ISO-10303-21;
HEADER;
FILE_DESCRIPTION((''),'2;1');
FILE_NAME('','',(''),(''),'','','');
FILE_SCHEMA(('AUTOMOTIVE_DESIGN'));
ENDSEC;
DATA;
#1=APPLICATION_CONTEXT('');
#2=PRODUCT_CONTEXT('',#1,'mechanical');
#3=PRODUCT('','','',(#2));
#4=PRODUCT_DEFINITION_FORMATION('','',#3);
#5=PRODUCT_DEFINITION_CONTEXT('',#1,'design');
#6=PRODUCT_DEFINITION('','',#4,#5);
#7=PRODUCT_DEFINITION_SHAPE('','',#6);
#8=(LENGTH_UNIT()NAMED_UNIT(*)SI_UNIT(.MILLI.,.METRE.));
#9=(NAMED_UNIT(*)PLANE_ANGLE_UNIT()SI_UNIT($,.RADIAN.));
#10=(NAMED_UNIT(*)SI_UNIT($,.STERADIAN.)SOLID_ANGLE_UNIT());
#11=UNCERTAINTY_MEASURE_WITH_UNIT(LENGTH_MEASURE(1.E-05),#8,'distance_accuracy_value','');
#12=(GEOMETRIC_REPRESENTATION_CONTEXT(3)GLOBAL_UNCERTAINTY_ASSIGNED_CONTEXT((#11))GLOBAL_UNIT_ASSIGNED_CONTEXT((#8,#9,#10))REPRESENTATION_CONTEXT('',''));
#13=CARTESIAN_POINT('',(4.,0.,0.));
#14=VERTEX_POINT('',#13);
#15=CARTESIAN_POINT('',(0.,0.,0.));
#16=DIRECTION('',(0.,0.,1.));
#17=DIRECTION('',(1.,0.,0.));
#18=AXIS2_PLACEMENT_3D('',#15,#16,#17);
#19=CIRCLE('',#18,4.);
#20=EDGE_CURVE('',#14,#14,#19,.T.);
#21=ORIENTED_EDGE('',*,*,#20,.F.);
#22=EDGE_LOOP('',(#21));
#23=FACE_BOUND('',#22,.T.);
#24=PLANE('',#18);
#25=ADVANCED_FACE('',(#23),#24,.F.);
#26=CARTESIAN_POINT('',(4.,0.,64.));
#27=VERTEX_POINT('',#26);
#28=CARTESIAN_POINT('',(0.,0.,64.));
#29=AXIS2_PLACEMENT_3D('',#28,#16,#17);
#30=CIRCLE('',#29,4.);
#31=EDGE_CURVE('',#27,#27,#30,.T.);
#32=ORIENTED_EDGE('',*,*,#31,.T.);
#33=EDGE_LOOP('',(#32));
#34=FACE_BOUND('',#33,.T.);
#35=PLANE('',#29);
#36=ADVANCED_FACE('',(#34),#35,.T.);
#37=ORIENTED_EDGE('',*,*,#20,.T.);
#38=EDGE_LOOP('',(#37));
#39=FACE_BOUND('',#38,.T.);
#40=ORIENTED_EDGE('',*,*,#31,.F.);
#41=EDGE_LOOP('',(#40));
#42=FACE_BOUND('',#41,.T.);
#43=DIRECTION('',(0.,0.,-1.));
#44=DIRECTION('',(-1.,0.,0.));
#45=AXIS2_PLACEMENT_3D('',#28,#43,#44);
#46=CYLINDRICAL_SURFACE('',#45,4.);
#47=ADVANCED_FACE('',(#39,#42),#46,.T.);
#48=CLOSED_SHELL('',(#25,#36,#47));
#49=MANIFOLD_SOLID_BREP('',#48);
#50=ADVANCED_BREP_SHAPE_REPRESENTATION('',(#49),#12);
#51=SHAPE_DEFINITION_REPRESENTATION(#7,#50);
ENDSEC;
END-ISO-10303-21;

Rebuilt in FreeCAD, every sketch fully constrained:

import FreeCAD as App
import Part
import Sketcher

V = App.Vector

doc = App.newDocument("Part")
body = doc.addObject("PartDesign::Body", "Body")

sketch1 = body.newObject("Sketcher::SketchObject", "Sketch")
sketch1.AttachmentSupport = (doc.getObject("XY_Plane"), [""])
sketch1.MapMode = "FlatFace"
sketch1.addGeometry(Part.Circle(V(0, 0, 0), V(0, 0, 1), 4), False)
sketch1.addConstraint([
    Sketcher.Constraint("Coincident", 0, 3, -1, 1),
    Sketcher.Constraint("Diameter", 0, 8.0),
])
pad1 = body.newObject("PartDesign::Pad", "Pad")
pad1.Profile = sketch1
pad1.Length = 64

doc.recompute()
